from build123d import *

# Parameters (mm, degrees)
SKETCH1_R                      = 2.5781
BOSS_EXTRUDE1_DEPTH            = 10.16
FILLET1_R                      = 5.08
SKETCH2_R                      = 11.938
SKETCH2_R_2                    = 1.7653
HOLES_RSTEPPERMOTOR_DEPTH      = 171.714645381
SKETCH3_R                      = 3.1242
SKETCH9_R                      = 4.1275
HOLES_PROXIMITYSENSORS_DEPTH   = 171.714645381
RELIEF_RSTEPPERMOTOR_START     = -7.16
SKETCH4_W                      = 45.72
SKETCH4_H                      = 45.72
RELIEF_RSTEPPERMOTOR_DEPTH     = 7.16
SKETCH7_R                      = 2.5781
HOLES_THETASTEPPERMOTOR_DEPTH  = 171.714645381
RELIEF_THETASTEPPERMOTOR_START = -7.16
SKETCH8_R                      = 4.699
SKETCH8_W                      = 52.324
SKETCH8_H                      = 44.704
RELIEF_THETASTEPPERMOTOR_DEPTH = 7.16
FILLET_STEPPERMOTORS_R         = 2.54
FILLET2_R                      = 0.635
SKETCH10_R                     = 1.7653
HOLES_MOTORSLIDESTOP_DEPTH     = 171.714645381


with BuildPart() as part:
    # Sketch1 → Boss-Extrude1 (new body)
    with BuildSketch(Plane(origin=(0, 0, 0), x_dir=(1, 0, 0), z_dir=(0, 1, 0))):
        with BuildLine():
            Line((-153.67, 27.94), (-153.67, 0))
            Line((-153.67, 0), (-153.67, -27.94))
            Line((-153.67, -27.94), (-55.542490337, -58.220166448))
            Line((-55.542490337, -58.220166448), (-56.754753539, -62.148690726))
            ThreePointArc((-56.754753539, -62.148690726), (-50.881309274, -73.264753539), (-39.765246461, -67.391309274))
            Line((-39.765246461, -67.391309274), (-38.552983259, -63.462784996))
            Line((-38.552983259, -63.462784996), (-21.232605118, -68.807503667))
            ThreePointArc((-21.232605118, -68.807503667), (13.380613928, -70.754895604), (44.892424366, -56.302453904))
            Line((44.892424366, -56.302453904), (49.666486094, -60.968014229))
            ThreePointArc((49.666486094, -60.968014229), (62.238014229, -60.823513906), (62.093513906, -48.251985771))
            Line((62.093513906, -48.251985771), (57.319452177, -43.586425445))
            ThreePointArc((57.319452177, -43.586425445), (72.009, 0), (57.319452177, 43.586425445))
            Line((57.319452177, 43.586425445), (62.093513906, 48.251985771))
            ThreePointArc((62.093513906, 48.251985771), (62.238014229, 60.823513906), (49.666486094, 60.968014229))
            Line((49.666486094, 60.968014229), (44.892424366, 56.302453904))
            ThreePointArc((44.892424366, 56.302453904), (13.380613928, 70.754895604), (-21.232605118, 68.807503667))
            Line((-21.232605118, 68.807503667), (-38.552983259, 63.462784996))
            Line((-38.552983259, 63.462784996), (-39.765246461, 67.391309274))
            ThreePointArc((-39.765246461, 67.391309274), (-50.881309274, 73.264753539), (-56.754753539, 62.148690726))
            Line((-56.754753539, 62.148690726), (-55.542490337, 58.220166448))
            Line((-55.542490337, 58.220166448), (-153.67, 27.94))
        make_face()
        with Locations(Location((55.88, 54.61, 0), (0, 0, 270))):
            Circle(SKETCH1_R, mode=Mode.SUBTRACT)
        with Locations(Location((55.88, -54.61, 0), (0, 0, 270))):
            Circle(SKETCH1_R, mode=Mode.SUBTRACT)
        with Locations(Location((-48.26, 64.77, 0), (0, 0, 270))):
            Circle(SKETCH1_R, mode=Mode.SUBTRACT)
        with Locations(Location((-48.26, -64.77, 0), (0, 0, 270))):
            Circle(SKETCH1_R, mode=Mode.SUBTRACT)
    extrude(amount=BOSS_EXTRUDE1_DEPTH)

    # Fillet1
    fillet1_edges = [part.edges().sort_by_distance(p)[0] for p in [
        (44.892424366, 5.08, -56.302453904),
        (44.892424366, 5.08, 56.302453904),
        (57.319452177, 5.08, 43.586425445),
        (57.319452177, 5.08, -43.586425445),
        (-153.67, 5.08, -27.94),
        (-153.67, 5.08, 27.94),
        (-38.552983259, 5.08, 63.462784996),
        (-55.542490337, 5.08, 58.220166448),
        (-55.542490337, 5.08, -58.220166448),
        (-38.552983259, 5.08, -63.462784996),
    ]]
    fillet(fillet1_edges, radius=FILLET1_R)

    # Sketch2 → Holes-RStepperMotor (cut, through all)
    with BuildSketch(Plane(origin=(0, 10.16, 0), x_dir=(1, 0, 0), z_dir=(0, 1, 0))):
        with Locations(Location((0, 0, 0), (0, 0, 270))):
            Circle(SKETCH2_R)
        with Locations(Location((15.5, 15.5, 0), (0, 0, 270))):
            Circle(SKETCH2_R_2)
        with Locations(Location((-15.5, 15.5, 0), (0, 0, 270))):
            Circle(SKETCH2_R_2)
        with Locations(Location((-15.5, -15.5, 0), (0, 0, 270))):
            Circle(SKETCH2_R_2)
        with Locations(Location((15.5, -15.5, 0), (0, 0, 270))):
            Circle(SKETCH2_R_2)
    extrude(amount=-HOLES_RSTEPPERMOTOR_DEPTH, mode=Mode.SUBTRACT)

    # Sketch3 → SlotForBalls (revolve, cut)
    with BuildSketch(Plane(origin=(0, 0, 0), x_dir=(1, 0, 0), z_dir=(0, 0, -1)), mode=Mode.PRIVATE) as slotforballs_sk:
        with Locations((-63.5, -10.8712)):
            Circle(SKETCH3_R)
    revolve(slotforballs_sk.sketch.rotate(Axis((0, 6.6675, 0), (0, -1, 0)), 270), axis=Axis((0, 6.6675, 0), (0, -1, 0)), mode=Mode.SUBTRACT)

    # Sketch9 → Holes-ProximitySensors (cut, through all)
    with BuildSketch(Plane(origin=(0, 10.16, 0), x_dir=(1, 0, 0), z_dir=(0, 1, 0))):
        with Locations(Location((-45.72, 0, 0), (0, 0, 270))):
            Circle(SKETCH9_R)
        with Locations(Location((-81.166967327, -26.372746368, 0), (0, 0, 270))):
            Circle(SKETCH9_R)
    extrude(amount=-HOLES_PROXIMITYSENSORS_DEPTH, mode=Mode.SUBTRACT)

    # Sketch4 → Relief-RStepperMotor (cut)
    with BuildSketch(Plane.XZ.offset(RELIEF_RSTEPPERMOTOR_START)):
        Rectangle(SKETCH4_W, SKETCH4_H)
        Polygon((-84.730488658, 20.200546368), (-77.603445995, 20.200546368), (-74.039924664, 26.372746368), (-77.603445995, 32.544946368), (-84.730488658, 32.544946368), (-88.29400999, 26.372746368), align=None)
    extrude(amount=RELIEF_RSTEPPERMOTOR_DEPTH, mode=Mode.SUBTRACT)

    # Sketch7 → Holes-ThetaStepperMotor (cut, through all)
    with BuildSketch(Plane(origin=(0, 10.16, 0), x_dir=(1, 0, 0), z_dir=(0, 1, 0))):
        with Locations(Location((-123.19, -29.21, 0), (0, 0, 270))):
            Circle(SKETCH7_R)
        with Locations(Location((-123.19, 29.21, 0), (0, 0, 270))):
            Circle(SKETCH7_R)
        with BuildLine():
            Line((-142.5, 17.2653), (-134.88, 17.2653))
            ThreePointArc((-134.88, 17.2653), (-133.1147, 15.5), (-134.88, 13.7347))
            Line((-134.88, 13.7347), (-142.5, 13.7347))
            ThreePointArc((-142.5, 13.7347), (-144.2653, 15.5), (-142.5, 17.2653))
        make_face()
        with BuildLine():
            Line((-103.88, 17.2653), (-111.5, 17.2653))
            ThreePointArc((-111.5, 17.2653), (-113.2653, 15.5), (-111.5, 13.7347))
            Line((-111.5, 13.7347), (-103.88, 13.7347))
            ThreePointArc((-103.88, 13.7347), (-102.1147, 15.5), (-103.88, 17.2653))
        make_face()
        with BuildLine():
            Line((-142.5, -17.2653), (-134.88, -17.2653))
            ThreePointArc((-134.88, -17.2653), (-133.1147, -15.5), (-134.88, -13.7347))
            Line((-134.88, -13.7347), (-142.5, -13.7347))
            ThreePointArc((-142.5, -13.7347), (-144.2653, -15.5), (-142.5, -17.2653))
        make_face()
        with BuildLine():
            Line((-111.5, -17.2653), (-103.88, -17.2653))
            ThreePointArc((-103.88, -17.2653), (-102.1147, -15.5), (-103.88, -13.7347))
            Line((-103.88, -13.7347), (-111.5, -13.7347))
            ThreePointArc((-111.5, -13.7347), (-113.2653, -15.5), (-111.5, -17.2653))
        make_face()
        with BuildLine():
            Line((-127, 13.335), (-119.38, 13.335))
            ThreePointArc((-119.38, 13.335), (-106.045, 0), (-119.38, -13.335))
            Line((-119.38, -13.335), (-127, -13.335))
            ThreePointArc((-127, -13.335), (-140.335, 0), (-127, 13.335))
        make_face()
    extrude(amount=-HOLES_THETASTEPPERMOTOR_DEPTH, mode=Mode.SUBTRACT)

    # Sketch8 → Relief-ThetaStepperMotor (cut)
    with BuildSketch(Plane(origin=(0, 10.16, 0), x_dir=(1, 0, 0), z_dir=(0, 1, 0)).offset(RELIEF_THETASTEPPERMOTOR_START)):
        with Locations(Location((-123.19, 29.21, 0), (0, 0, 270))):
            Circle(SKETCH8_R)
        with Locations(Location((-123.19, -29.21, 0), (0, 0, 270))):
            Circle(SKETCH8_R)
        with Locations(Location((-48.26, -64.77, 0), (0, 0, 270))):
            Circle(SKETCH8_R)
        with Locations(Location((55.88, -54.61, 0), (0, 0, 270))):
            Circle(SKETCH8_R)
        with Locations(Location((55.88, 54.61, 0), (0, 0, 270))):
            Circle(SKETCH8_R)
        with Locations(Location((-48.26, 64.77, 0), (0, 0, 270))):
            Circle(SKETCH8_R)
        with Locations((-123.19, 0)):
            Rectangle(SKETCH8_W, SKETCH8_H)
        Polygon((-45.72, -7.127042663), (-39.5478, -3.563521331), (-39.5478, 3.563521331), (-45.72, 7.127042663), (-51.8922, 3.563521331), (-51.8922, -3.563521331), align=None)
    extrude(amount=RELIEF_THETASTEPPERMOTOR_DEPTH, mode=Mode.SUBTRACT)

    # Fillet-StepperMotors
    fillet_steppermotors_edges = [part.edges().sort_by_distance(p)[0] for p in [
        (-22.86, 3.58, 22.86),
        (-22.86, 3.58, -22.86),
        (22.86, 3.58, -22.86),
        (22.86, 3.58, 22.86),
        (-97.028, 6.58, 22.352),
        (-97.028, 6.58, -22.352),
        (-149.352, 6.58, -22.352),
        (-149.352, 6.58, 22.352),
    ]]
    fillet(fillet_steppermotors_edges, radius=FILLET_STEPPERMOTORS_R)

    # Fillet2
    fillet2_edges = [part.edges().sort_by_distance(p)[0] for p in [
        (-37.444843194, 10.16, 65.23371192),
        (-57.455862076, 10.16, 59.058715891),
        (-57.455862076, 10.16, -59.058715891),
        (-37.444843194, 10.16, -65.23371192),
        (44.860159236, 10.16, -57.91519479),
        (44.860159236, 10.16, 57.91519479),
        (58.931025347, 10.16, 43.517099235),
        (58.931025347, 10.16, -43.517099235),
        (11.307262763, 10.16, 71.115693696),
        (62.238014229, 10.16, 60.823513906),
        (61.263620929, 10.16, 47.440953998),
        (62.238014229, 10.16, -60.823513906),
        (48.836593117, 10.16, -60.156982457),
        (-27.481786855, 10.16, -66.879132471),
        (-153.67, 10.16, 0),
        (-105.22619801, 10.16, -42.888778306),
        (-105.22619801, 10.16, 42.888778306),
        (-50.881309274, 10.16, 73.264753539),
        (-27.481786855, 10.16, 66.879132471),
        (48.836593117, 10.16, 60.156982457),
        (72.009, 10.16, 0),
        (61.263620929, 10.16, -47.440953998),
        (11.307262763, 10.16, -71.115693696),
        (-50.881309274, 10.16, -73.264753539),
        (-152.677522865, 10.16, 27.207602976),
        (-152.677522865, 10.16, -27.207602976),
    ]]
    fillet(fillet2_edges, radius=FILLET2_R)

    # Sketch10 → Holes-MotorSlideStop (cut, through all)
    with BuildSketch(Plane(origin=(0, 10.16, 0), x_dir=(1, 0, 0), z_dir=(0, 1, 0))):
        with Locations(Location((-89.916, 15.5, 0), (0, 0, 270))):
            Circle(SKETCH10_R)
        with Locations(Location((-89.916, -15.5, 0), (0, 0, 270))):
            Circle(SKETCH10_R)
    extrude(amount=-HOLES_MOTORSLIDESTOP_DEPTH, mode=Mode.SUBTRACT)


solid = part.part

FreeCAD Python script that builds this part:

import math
import FreeCAD as App
import Part
import Sketcher
Q = App.Units.Quantity


def edges_at(feature, points):
    """Names of the edges that pass closest to the given points."""
    edges = feature.Shape.Edges
    near = lambda p: min(range(len(edges)), key=lambda i: edges[i].distToShape(Part.Vertex(*p))[0])
    return sorted({f"Edge{near(p) + 1}" for p in points})

doc = App.newDocument("Part")
params = doc.addObject("Spreadsheet::Sheet", "Params")
for row, (alias, value) in enumerate([
    ("sketch1_radius", "0.35 in"),
    ("sketch1_diameter", "0.203 in"),
    ("sketch1_height", "2.2 in"),
    ("sketch1_radius2", "2.835 in"),
    ("pad1_length", "0.4 in"),
    ("fillet_radius", "0.2 in"),
    ("sketch2_diameter", "0.94 in"),
    ("sketch2_diameter2", "0.139 in"),
    ("sketch3_diameter", "0.246 in"),
    ("groove_angle", "360 deg"),
    ("sketch4_diameter", "0.325 in"),
    ("sketch5_width", "1.8 in"),
    ("pocket3_length", "7.16 mm"),
    ("sketch6_diameter", "0.203 in"),
    ("sketch6_width", "0.3 in"),
    ("sketch6_radius", "0.525 in"),
    ("sketch7_diameter", "0.37 in"),
    ("sketch7_width", "2.06 in"),
    ("sketch7_height", "1.76 in"),
    ("pocket5_length", "7.16 mm"),
    ("fillet2_radius", "0.1 in"),
    ("fillet3_radius", "0.025 in"),
    ("sketch8_diameter", "0.139 in"),
], start=1):
    params.set(f"A{row}", alias)
    params.set(f"B{row}", "=" + value)
    params.setAlias(f"B{row}", alias)

body = doc.addObject("PartDesign::Body", "Body")

# Sketch on XZ plane
sketch1 = doc.addObject("Sketcher::SketchObject", "Sketch")
body.addObject(sketch1)
sketch1.AttachmentSupport = (doc.XZ_Plane, [""])
sketch1.MapMode = "FlatFace"
sketch1.addGeometry([
    Part.LineSegment(App.Vector(-153.67, -27.94, 0), App.Vector(-153.67, 27.94, 0)),  # 0
    Part.LineSegment(App.Vector(-153.67, 27.94, 0), App.Vector(-55.54249, 58.220166, 0)),  # 1
    Part.LineSegment(App.Vector(-55.54249, 58.220166, 0), App.Vector(-56.754754, 62.148691, 0)),  # 2
    Part.ArcOfCircle(Part.Circle(App.Vector(-48.26, 64.77, 0), App.Vector(0, 0, 1), 8.89), math.radians(17.149169), math.radians(197.149169)),  # 3
    Part.LineSegment(App.Vector(-39.765246, 67.391309, 0), App.Vector(-38.552983, 63.462785, 0)),  # 4
    Part.LineSegment(App.Vector(-38.552983, 63.462785, 0), App.Vector(-21.232605, 68.807504, 0)),  # 5
    Part.ArcOfCircle(Part.Circle(App.Vector(0, 0, 0), App.Vector(0, 0, 1), 72.009), math.radians(51.433103), math.radians(107.149169)),  # 6
    Part.LineSegment(App.Vector(44.892424, 56.302454, 0), App.Vector(49.666486, 60.968014, 0)),  # 7
    Part.ArcOfCircle(Part.Circle(App.Vector(55.88, 54.61, 0), App.Vector(0, 0, 1), 8.89), math.radians(-45.658543), math.radians(134.341457)),  # 8
    Part.LineSegment(App.Vector(62.093514, 48.251986, 0), App.Vector(57.319452, 43.586425, 0)),  # 9
    Part.ArcOfCircle(Part.Circle(App.Vector(0, 0, 0), App.Vector(0, 0, 1), 72.009), math.radians(-37.249811), math.radians(37.249811)),  # 10
    Part.LineSegment(App.Vector(57.319452, -43.586425, 0), App.Vector(62.093514, -48.251986, 0)),  # 11
    Part.ArcOfCircle(Part.Circle(App.Vector(55.88, -54.61, 0), App.Vector(0, 0, 1), 8.89), math.radians(-134.341457), math.radians(45.658543)),  # 12
    Part.LineSegment(App.Vector(49.666486, -60.968014, 0), App.Vector(44.892424, -56.302454, 0)),  # 13
    Part.ArcOfCircle(Part.Circle(App.Vector(0, 0, 0), App.Vector(0, 0, 1), 72.009), math.radians(-107.149169), math.radians(-51.433103)),  # 14
    Part.LineSegment(App.Vector(-21.232605, -68.807504, 0), App.Vector(-38.552983, -63.462785, 0)),  # 15
    Part.LineSegment(App.Vector(-38.552983, -63.462785, 0), App.Vector(-39.765246, -67.391309, 0)),  # 16
    Part.ArcOfCircle(Part.Circle(App.Vector(-48.26, -64.77, 0), App.Vector(0, 0, 1), 8.89), math.radians(162.850831), math.radians(342.850831)),  # 17
    Part.LineSegment(App.Vector(-56.754754, -62.148691, 0), App.Vector(-55.54249, -58.220166, 0)),  # 18
    Part.LineSegment(App.Vector(-55.54249, -58.220166, 0), App.Vector(-153.67, -27.94, 0)),  # 19
    Part.Circle(App.Vector(-48.26, 64.77, 0), App.Vector(0, 0, 1), 2.5781),  # 20
    Part.Circle(App.Vector(55.88, 54.61, 0), App.Vector(0, 0, 1), 2.5781),  # 21
    Part.Circle(App.Vector(-48.26, -64.77, 0), App.Vector(0, 0, 1), 2.5781),  # 22
    Part.Circle(App.Vector(55.88, -54.61, 0), App.Vector(0, 0, 1), 2.5781),  # 23
], False)
sketch1.addConstraint([
    Sketcher.Constraint("Coincident", 0, 2, 1, 1),
    Sketcher.Constraint("Coincident", 1, 2, 2, 1),
    Sketcher.Constraint("Tangent", 2, 2, 3, 2),
    Sketcher.Constraint("Tangent", 3, 1, 4, 1),
    Sketcher.Constraint("Coincident", 4, 2, 5, 1),
    Sketcher.Constraint("Tangent", 5, 2, 6, 2),
    Sketcher.Constraint("Coincident", 6, 1, 7, 1),
    Sketcher.Constraint("Tangent", 7, 2, 8, 2),
    Sketcher.Constraint("Tangent", 8, 1, 9, 1),
    Sketcher.Constraint("Coincident", 9, 2, 10, 2),
    Sketcher.Constraint("Coincident", 10, 1, 11, 1),
    Sketcher.Constraint("Tangent", 11, 2, 12, 2),
    Sketcher.Constraint("Tangent", 12, 1, 13, 1),
    Sketcher.Constraint("Coincident", 13, 2, 14, 2),
    Sketcher.Constraint("Tangent", 14, 1, 15, 1),
    Sketcher.Constraint("Coincident", 15, 2, 16, 1),
    Sketcher.Constraint("Tangent", 16, 2, 17, 2),
    Sketcher.Constraint("Tangent", 17, 1, 18, 1),
    Sketcher.Constraint("Coincident", 18, 2, 19, 1),
    Sketcher.Constraint("Coincident", 19, 2, 0, 1),
    Sketcher.Constraint("Vertical", 0),
    Sketcher.Constraint("Coincident", 6, 3, -1, 1),
    Sketcher.Constraint("Coincident", 10, 3, -1, 1),
    Sketcher.Constraint("Coincident", 14, 3, -1, 1),
    Sketcher.Constraint("Coincident", 20, 3, 3, 3),
    Sketcher.Constraint("Coincident", 21, 3, 8, 3),
    Sketcher.Constraint("Coincident", 22, 3, 17, 3),
    Sketcher.Constraint("Coincident", 23, 3, 12, 3),
    Sketcher.Constraint("Equal", 3, 8),
    Sketcher.Constraint("Equal", 6, 10),
    Sketcher.Constraint("Equal", 8, 12),
    Sketcher.Constraint("Equal", 10, 14),
    Sketcher.Constraint("Equal", 12, 17),
    Sketcher.Constraint("Equal", 20, 21),
    Sketcher.Constraint("Equal", 21, 22),
    Sketcher.Constraint("Equal", 22, 23),
    Sketcher.Constraint("Symmetric", 8, 3, 12, 3, -1),
    Sketcher.Constraint("Symmetric", 3, 3, 17, 3, -1),
    Sketcher.Constraint("Symmetric", 4, 2, 15, 2, -1),
    Sketcher.Constraint("Symmetric", 1, 2, 18, 2, -1),
    Sketcher.Constraint("Perpendicular", 1, 2),
    Sketcher.Constraint("Parallel", 2, 4),
    Sketcher.Constraint("Perpendicular", 4, 5),
    Sketcher.Constraint("Parallel", 7, 9),
    Sketcher.Constraint("Parallel", 11, 13),
    Sketcher.Constraint("Perpendicular", 18, 19),
    Sketcher.Constraint("Vertical", 9, 2, 10, 1),
    Sketcher.Constraint("Equal", 2, 4),
    Sketcher.Constraint("Equal", 7, 9),
    Sketcher.Constraint("Radius", 3, Q("0.35 in")),
    Sketcher.Constraint("Diameter", 20, Q("0.203 in")),
    Sketcher.Constraint("DistanceY", 0, 1, 0, 2, Q("2.2 in")),
    Sketcher.Constraint("Radius", 6, Q("2.835 in")),
    Sketcher.Constraint("DistanceX", 3, 3, -1, 1, Q("1.9 in")),
    Sketcher.Constraint("DistanceX", -1, 1, 8, 3, Q("2.2 in")),
    Sketcher.Constraint("DistanceY", 8, 3, 3, 3, Q("0.4 in")),
    Sketcher.Constraint("DistanceY", 12, 3, 8, 3, Q("4.3 in")),
    Sketcher.Constraint("DistanceX", 0, 2, -1, 1, Q("6.05 in")),
])
sketch1.setExpression("Constraints[49]", "Params.sketch1_radius")
sketch1.setExpression("Constraints[50]", "Params.sketch1_diameter")
sketch1.setExpression("Constraints[51]", "Params.sketch1_height")
sketch1.setExpression("Constraints[52]", "Params.sketch1_radius2")
pad1 = doc.addObject("PartDesign::Pad", "Pad")
body.addObject(pad1)
pad1.Profile = sketch1
pad1.setExpression("Length", "Params.pad1_length")
pad1.Reversed = True
doc.recompute()

fillet = doc.addObject("PartDesign::Fillet", "Fillet")
body.addObject(fillet)
fillet.Base = (pad1, edges_at(pad1, [
    (44.892, 5.08, -56.302),
    (44.892, 5.08, 56.302),
    (57.319, 5.08, 43.586),
    (57.319, 5.08, -43.586),
    (-153.67, 5.08, -27.94),
    (-153.67, 5.08, 27.94),
    (-38.553, 5.08, 63.463),
    (-55.542, 5.08, 58.22),
    (-55.542, 5.08, -58.22),
    (-38.553, 5.08, -63.463),
]))
fillet.setExpression("Radius", "Params.fillet_radius")

# Sketch on XZ plane
sketch2 = doc.addObject("Sketcher::SketchObject", "Sketch001")
body.addObject(sketch2)
sketch2.AttachmentSupport = (doc.XZ_Plane, [""])
sketch2.MapMode = "FlatFace"
sketch2.AttachmentOffset = App.Placement(App.Vector(0, 0, -0.4 * 25.4), App.Rotation())
sketch2.addGeometry([
    Part.Circle(App.Vector(0, 0, 0), App.Vector(0, 0, 1), 11.938),  # 0
    Part.Circle(App.Vector(15.5, -15.5, 0), App.Vector(0, 0, 1), 1.7653),  # 1
    Part.Circle(App.Vector(-15.5, -15.5, 0), App.Vector(0, 0, 1), 1.7653),  # 2
    Part.Circle(App.Vector(-15.5, 15.5, 0), App.Vector(0, 0, 1), 1.7653),  # 3
    Part.Circle(App.Vector(15.5, 15.5, 0), App.Vector(0, 0, 1), 1.7653),  # 4
], False)
sketch2.addConstraint([
    Sketcher.Constraint("Coincident", 0, 3, -1, 1),
    Sketcher.Constraint("Equal", 1, 2),
    Sketcher.Constraint("Equal", 2, 3),
    Sketcher.Constraint("Equal", 3, 4),
    Sketcher.Constraint("Symmetric", 1, 3, 3, 3, -1, 1),
    Sketcher.Constraint("Symmetric", 2, 3, 4, 3, -1, 1),
    Sketcher.Constraint("Symmetric", 1, 3, 2, 3, -2),
    Sketcher.Constraint("Diameter", 0, Q("0.94 in")),
    Sketcher.Constraint("Diameter", 1, Q("0.139 in")),
    Sketcher.Constraint("DistanceX", -1, 1, 1, 3, 15.5),
    Sketcher.Constraint("DistanceY", 1, 3, -1, 1, 15.5),
])
sketch2.setExpression("Constraints[7]", "Params.sketch2_diameter")
sketch2.setExpression("Constraints[8]", "Params.sketch2_diameter2")
pocket1 = doc.addObject("PartDesign::Pocket", "Pocket")
body.addObject(pocket1)
pocket1.Profile = sketch2
pocket1.Type = "ThroughAll"
pocket1.Reversed = True

# Sketch on XY plane
sketch3 = doc.addObject("Sketcher::SketchObject", "Sketch002")
body.addObject(sketch3)
sketch3.AttachmentSupport = (doc.XY_Plane, [""])
sketch3.MapMode = "FlatFace"
sketch3.addGeometry(Part.Circle(App.Vector(-63.5, 10.8712, 0), App.Vector(0, 0, 1), 3.1242), False)
sketch3.addConstraint([
    Sketcher.Constraint("Diameter", 0, Q("0.246 in")),
    Sketcher.Constraint("DistanceX", 0, 3, -1, 1, Q("2.5 in")),
    Sketcher.Constraint("DistanceY", -1, 1, 0, 3, Q("0.428 in")),
])
sketch3.setExpression("Constraints[0]", "Params.sketch3_diameter")
groove = doc.addObject("PartDesign::Groove", "Groove")
body.addObject(groove)
groove.Profile = sketch3
groove.ReferenceAxis = (sketch3, ["V_Axis"])
groove.setExpression("Angle", "Params.groove_angle")

# Sketch on XZ plane
sketch4 = doc.addObject("Sketcher::SketchObject", "Sketch003")
body.addObject(sketch4)
sketch4.AttachmentSupport = (doc.XZ_Plane, [""])
sketch4.MapMode = "FlatFace"
sketch4.AttachmentOffset = App.Placement(App.Vector(0, 0, -0.4 * 25.4), App.Rotation())
sketch4.addGeometry([
    Part.Circle(App.Vector(-45.72, 0, 0), App.Vector(0, 0, 1), 4.1275),
    Part.Circle(App.Vector(-81.166967, 26.372746, 0), App.Vector(0, 0, 1), 4.1275),
], False)
sketch4.addConstraint([
    Sketcher.Constraint("Equal", 0, 1),
    Sketcher.Constraint("PointOnObject", 0, 3, -1),
    Sketcher.Constraint("Diameter", 0, Q("0.325 in")),
    Sketcher.Constraint("DistanceX", 0, 3, -1, 1, Q("1.8 in")),
    Sketcher.Constraint("DistanceX", 1, 3, -1, 1, 81.166967),
    Sketcher.Constraint("DistanceY", -1, 1, 1, 3, 26.372746),
])
sketch4.setExpression("Constraints[2]", "Params.sketch4_diameter")
pocket2 = doc.addObject("PartDesign::Pocket", "Pocket001")
body.addObject(pocket2)
pocket2.Profile = sketch4
pocket2.Type = "ThroughAll"
pocket2.Reversed = True

# Sketch on XZ plane
sketch5 = doc.addObject("Sketcher::SketchObject", "Sketch004")
body.addObject(sketch5)
sketch5.AttachmentSupport = (doc.XZ_Plane, [""])
sketch5.MapMode = "FlatFace"
sketch5.AttachmentOffset = App.Placement(App.Vector(0, 0, -7.16), App.Rotation())
sketch5.addGeometry([
    Part.LineSegment(App.Vector(-22.86, 22.86, 0), App.Vector(-22.86, -22.86, 0)),  # 0
    Part.LineSegment(App.Vector(-22.86, -22.86, 0), App.Vector(22.86, -22.86, 0)),  # 1
    Part.LineSegment(App.Vector(22.86, -22.86, 0), App.Vector(22.86, 22.86, 0)),  # 2
    Part.LineSegment(App.Vector(22.86, 22.86, 0), App.Vector(-22.86, 22.86, 0)),  # 3
    Part.LineSegment(App.Vector(-84.730489, 20.200546, 0), App.Vector(-77.603446, 20.200546, 0)),  # 4
    Part.LineSegment(App.Vector(-77.603446, 20.200546, 0), App.Vector(-74.039925, 26.372746, 0)),  # 5
    Part.LineSegment(App.Vector(-74.039925, 26.372746, 0), App.Vector(-77.603446, 32.544946, 0)),  # 6
    Part.LineSegment(App.Vector(-77.603446, 32.544946, 0), App.Vector(-84.730489, 32.544946, 0)),  # 7
    Part.LineSegment(App.Vector(-84.730489, 32.544946, 0), App.Vector(-88.29401, 26.372746, 0)),  # 8
    Part.LineSegment(App.Vector(-88.29401, 26.372746, 0), App.Vector(-84.730489, 20.200546, 0)),  # 9
], False)
sketch5.addConstraint([
    Sketcher.Constraint("Coincident", 0, 2, 1, 1),
    Sketcher.Constraint("Coincident", 1, 2, 2, 1),
    Sketcher.Constraint("Coincident", 2, 2, 3, 1),
    Sketcher.Constraint("Coincident", 3, 2, 0, 1),
    Sketcher.Constraint("Coincident", 4, 2, 5, 1),
    Sketcher.Constraint("Coincident", 5, 2, 6, 1),
    Sketcher.Constraint("Coincident", 6, 2, 7, 1),
    Sketcher.Constraint("Coincident", 7, 2, 8, 1),
    Sketcher.Constraint("Coincident", 8, 2, 9, 1),
    Sketcher.Constraint("Coincident", 9, 2, 4, 1),
    Sketcher.Constraint("Vertical", 0),
    Sketcher.Constraint("Horizontal", 1),
    Sketcher.Constraint("Vertical", 2),
    Sketcher.Constraint("Horizontal", 3),
    Sketcher.Constraint("Horizontal", 4),
    Sketcher.Constraint("Horizontal", 7),
    Sketcher.Constraint("Symmetric", 0, 2, 2, 2, -1, 1),
    Sketcher.Constraint("Parallel", 5, 8),
    Sketcher.Constraint("Parallel", 6, 9),
    Sketcher.Constraint("Horizontal", 5, 2, 8, 2),
    Sketcher.Constraint("Vertical", 4, 2, 6, 2),
    Sketcher.Constraint("Vertical", 7, 2, 9, 2),
    Sketcher.Constraint("Equal", 3, 0),
    Sketcher.Constraint("DistanceX", 1, 1, 1, 2, Q("1.8 in")),
    Sketcher.Constraint("Angle", 5, Q("60 deg")),
    Sketcher.Constraint("DistanceY", 4, 2, 5, 2, Q("0.243 in")),
    Sketcher.Constraint("DistanceX", 4, 1, 4, 2, 7.127043),
    Sketcher.Constraint("DistanceX", 7, 2, -1, 1, 84.730489),
    Sketcher.Constraint("DistanceY", -1, 1, 4, 2, 20.200546),
])
sketch5.setExpression("Constraints[23]", "Params.sketch5_width")
pocket3 = doc.addObject("PartDesign::Pocket", "Pocket002")
body.addObject(pocket3)
pocket3.Profile = sketch5
pocket3.setExpression("Length", "Params.pocket3_length")
pocket3.Reversed = True

# Sketch on XZ plane
sketch6 = doc.addObject("Sketcher::SketchObject", "Sketch005")
body.addObject(sketch6)
sketch6.AttachmentSupport = (doc.XZ_Plane, [""])
sketch6.MapMode = "FlatFace"
sketch6.AttachmentOffset = App.Placement(App.Vector(0, 0, -0.4 * 25.4), App.Rotation())
sketch6.addGeometry([
    Part.Circle(App.Vector(-123.19, 29.21, 0), App.Vector(0, 0, 1), 2.5781),  # 0
    Part.Circle(App.Vector(-123.19, -29.21, 0), App.Vector(0, 0, 1), 2.5781),  # 1
    Part.LineSegment(App.Vector(-134.88, -17.2653, 0), App.Vector(-142.5, -17.2653, 0)),  # 2
    Part.ArcOfCircle(Part.Circle(App.Vector(-142.5, -15.5, 0), App.Vector(0, 0, 1), 1.7653), math.radians(90), math.radians(270)),  # 3
    Part.LineSegment(App.Vector(-142.5, -13.7347, 0), App.Vector(-134.88, -13.7347, 0)),  # 4
    Part.ArcOfCircle(Part.Circle(App.Vector(-134.88, -15.5, 0), App.Vector(0, 0, 1), 1.7653), math.radians(-90), math.radians(90)),  # 5
    Part.LineSegment(App.Vector(-103.88, -17.2653, 0), App.Vector(-111.5, -17.2653, 0)),  # 6
    Part.ArcOfCircle(Part.Circle(App.Vector(-111.5, -15.5, 0), App.Vector(0, 0, 1), 1.7653), math.radians(90), math.radians(270)),  # 7
    Part.LineSegment(App.Vector(-111.5, -13.7347, 0), App.Vector(-103.88, -13.7347, 0)),  # 8
    Part.ArcOfCircle(Part.Circle(App.Vector(-103.88, -15.5, 0), App.Vector(0, 0, 1), 1.7653), math.radians(-90), math.radians(90)),  # 9
    Part.LineSegment(App.Vector(-142.5, 17.2653, 0), App.Vector(-134.88, 17.2653, 0)),  # 10
    Part.ArcOfCircle(Part.Circle(App.Vector(-134.88, 15.5, 0), App.Vector(0, 0, 1), 1.7653), math.radians(-90), math.radians(90)),  # 11
    Part.LineSegment(App.Vector(-134.88, 13.7347, 0), App.Vector(-142.5, 13.7347, 0)),  # 12
    Part.ArcOfCircle(Part.Circle(App.Vector(-142.5, 15.5, 0), App.Vector(0, 0, 1), 1.7653), math.radians(90), math.radians(270)),  # 13
    Part.LineSegment(App.Vector(-111.5, 17.2653, 0), App.Vector(-103.88, 17.2653, 0)),  # 14
    Part.ArcOfCircle(Part.Circle(App.Vector(-103.88, 15.5, 0), App.Vector(0, 0, 1), 1.7653), math.radians(-90), math.radians(90)),  # 15
    Part.LineSegment(App.Vector(-103.88, 13.7347, 0), App.Vector(-111.5, 13.7347, 0)),  # 16
    Part.ArcOfCircle(Part.Circle(App.Vector(-111.5, 15.5, 0), App.Vector(0, 0, 1), 1.7653), math.radians(90), math.radians(270)),  # 17
    Part.LineSegment(App.Vector(-119.38, -13.335, 0), App.Vector(-127, -13.335, 0)),  # 18
    Part.ArcOfCircle(Part.Circle(App.Vector(-127, 0, 0), App.Vector(0, 0, 1), 13.335), math.radians(90), math.radians(270)),  # 19
    Part.LineSegment(App.Vector(-127, 13.335, 0), App.Vector(-119.38, 13.335, 0)),  # 20
    Part.ArcOfCircle(Part.Circle(App.Vector(-119.38, 0, 0), App.Vector(0, 0, 1), 13.335), math.radians(-90), math.radians(90)),  # 21
], False)
sketch6.addConstraint([
    Sketcher.Constraint("Tangent", 2, 2, 3, 2),
    Sketcher.Constraint("Tangent", 3, 1, 4, 1),
    Sketcher.Constraint("Tangent", 4, 2, 5, 2),
    Sketcher.Constraint("Tangent", 5, 1, 2, 1),
    Sketcher.Constraint("Tangent", 6, 2, 7, 2),
    Sketcher.Constraint("Tangent", 7, 1, 8, 1),
    Sketcher.Constraint("Tangent", 8, 2, 9, 2),
    Sketcher.Constraint("Tangent", 9, 1, 6, 1),
    Sketcher.Constraint("Tangent", 10, 2, 11, 2),
    Sketcher.Constraint("Tangent", 11, 1, 12, 1),
    Sketcher.Constraint("Tangent", 12, 2, 13, 2),
    Sketcher.Constraint("Tangent", 13, 1, 10, 1),
    Sketcher.Constraint("Tangent", 14, 2, 15, 2),
    Sketcher.Constraint("Tangent", 15, 1, 16, 1),
    Sketcher.Constraint("Tangent", 16, 2, 17, 2),
    Sketcher.Constraint("Tangent", 17, 1, 14, 1),
    Sketcher.Constraint("Tangent", 18, 2, 19, 2),
    Sketcher.Constraint("Tangent", 19, 1, 20, 1),
    Sketcher.Constraint("Tangent", 20, 2, 21, 2),
    Sketcher.Constraint("Tangent", 21, 1, 18, 1),
    Sketcher.Constraint("Horizontal", 2),
    Sketcher.Constraint("Horizontal", 4),
    Sketcher.Constraint("Horizontal", 6),
    Sketcher.Constraint("Horizontal", 8),
    Sketcher.Constraint("Horizontal", 10),
    Sketcher.Constraint("Horizontal", 12),
    Sketcher.Constraint("Horizontal", 14),
    Sketcher.Constraint("Horizontal", 16),
    Sketcher.Constraint("Horizontal", 18),
    Sketcher.Constraint("Horizontal", 20),
    Sketcher.Constraint("Equal", 0, 1),
    Sketcher.Constraint("Equal", 5, 7),
    Sketcher.Constraint("Equal", 9, 11),
    Sketcher.Constraint("Equal", 13, 15),
    Sketcher.Constraint("Symmetric", 0, 3, 1, 3, -1),
    Sketcher.Constraint("Symmetric", 5, 3, 11, 3, -1),
    Sketcher.Constraint("Symmetric", 9, 3, 15, 3, -1),
    Sketcher.Constraint("PointOnObject", 19, 3, -1),
    Sketcher.Constraint("Horizontal", 5, 3, 7, 3),
    Sketcher.Constraint("Vertical", 3, 3, 13, 3),
    Sketcher.Constraint("Vertical", 7, 3, 17, 3),
    Sketcher.Constraint("Equal", 4, 6),
    Sketcher.Constraint("Equal", 16, 18),
    Sketcher.Constraint("Diameter", 0, Q("0.203 in")),
    Sketcher.Constraint("DistanceX", 2, 2, 2, 1, Q("0.3 in")),
    Sketcher.Constraint("DistanceX", 19, 3, -1, 1, Q("5 in")),
    Sketcher.Constraint("Radius", 19, Q("0.525 in")),
    Sketcher.Constraint("Radius", 3, Q("0.0695 in")),
    Sketcher.Constraint("DistanceY", 1, 3, 0, 3, Q("2.3 in")),
    Sketcher.Constraint("DistanceX", 0, 3, -1, 1, Q("4.85 in")),
    Sketcher.Constraint("DistanceX", 3, 3, -1, 1, 142.5),
    Sketcher.Constraint("DistanceY", 3, 3, -1, 1, 15.5),
    Sketcher.Constraint("DistanceX", 7, 3, -1, 1, 111.5),
])
sketch6.setExpression("Constraints[43]", "Params.sketch6_diameter")
sketch6.setExpression("Constraints[44]", "Params.sketch6_width")
sketch6.setExpression("Constraints[46]", "Params.sketch6_radius")
pocket4 = doc.addObject("PartDesign::Pocket", "Pocket003")
body.addObject(pocket4)
pocket4.Profile = sketch6
pocket4.Type = "ThroughAll"
pocket4.Reversed = True

# Sketch on XZ plane
sketch7 = doc.addObject("Sketcher::SketchObject", "Sketch006")
body.addObject(sketch7)
sketch7.AttachmentSupport = (doc.XZ_Plane, [""])
sketch7.MapMode = "FlatFace"
sketch7.AttachmentOffset = App.Placement(App.Vector(0, 0, -3), App.Rotation())
sketch7.addGeometry([
    Part.Circle(App.Vector(-123.19, -29.21, 0), App.Vector(0, 0, 1), 4.699),  # 0
    Part.Circle(App.Vector(-123.19, 29.21, 0), App.Vector(0, 0, 1), 4.699),  # 1
    Part.Circle(App.Vector(-48.26, 64.77, 0), App.Vector(0, 0, 1), 4.699),  # 2
    Part.Circle(App.Vector(55.88, 54.61, 0), App.Vector(0, 0, 1), 4.699),  # 3
    Part.Circle(App.Vector(55.88, -54.61, 0), App.Vector(0, 0, 1), 4.699),  # 4
    Part.Circle(App.Vector(-48.26, -64.77, 0), App.Vector(0, 0, 1), 4.699),  # 5
    Part.LineSegment(App.Vector(-149.352, -22.352, 0), App.Vector(-149.352, 22.352, 0)),  # 6
    Part.LineSegment(App.Vector(-149.352, 22.352, 0), App.Vector(-97.028, 22.352, 0)),  # 7
    Part.LineSegment(App.Vector(-97.028, 22.352, 0), App.Vector(-97.028, -22.352, 0)),  # 8
    Part.LineSegment(App.Vector(-97.028, -22.352, 0), App.Vector(-149.352, -22.352, 0)),  # 9
    Part.LineSegment(App.Vector(-45.72, 7.127043, 0), App.Vector(-39.5478, 3.563521, 0)),  # 10
    Part.LineSegment(App.Vector(-39.5478, 3.563521, 0), App.Vector(-39.5478, -3.563521, 0)),  # 11
    Part.LineSegment(App.Vector(-39.5478, -3.563521, 0), App.Vector(-45.72, -7.127043, 0)),  # 12
    Part.LineSegment(App.Vector(-45.72, -7.127043, 0), App.Vector(-51.8922, -3.563521, 0)),  # 13
    Part.LineSegment(App.Vector(-51.8922, -3.563521, 0), App.Vector(-51.8922, 3.563521, 0)),  # 14
    Part.LineSegment(App.Vector(-51.8922, 3.563521, 0), App.Vector(-45.72, 7.127043, 0)),  # 15
], False)
sketch7.addConstraint([
    Sketcher.Constraint("Coincident", 6, 2, 7, 1),
    Sketcher.Constraint("Coincident", 7, 2, 8, 1),
    Sketcher.Constraint("Coincident", 8, 2, 9, 1),
    Sketcher.Constraint("Coincident", 9, 2, 6, 1),
    Sketcher.Constraint("Coincident", 10, 2, 11, 1),
    Sketcher.Constraint("Coincident", 11, 2, 12, 1),
    Sketcher.Constraint("Coincident", 12, 2, 13, 1),
    Sketcher.Constraint("Coincident", 13, 2, 14, 1),
    Sketcher.Constraint("Coincident", 14, 2, 15, 1),
    Sketcher.Constraint("Coincident", 15, 2, 10, 1),
    Sketcher.Constraint("Vertical", 6),
    Sketcher.Constraint("Horizontal", 7),
    Sketcher.Constraint("Vertical", 8),
    Sketcher.Constraint("Horizontal", 9),
    Sketcher.Constraint("Vertical", 11),
    Sketcher.Constraint("Vertical", 14),
    Sketcher.Constraint("Equal", 0, 1),
    Sketcher.Constraint("Equal", 1, 2),
    Sketcher.Constraint("Equal", 2, 3),
    Sketcher.Constraint("Equal", 3, 4),
    Sketcher.Constraint("Equal", 4, 5),
    Sketcher.Constraint("Symmetric", 0, 3, 1, 3, -1),
    Sketcher.Constraint("Symmetric", 3, 3, 4, 3, -1),
    Sketcher.Constraint("Symmetric", 2, 3, 5, 3, -1),
    Sketcher.Constraint("Symmetric", 12, 2, 15, 2, -1),
    Sketcher.Constraint("Parallel", 10, 13),
    Sketcher.Constraint("Parallel", 12, 15),
    Sketcher.Constraint("Horizontal", 11, 2, 13, 2),
    Sketcher.Constraint("Horizontal", 10, 2, 14, 2),
    Sketcher.Constraint("Diameter", 0, Q("0.37 in")),
    Sketcher.Constraint("Angle", 10, Q("-30 deg")),
    Sketcher.Constraint("DistanceY", 1, 3, 3, 3, Q("1 in")),
    Sketcher.Constraint("DistanceX", 7, 1, 7, 2, Q("2.06 in")),
    Sketcher.Constraint("DistanceY", 6, 1, 6, 2, Q("1.76 in")),
    Sketcher.Constraint("DistanceX", 2, 3, -1, 1, Q("1.9 in")),
    Sketcher.Constraint("DistanceX", -1, 1, 3, 3, Q("2.2 in")),
    Sketcher.Constraint("DistanceX", 12, 2, -1, 1, Q("1.8 in")),
    Sketcher.Constraint("DistanceY", 0, 3, 1, 3, Q("2.3 in")),
    Sketcher.Constraint("DistanceY", 1, 3, 2, 3, Q("1.4 in")),
    Sketcher.Constraint("DistanceX", 0, 3, -1, 1, Q("4.85 in")),
    Sketcher.Constraint("DistanceX", 6, 2, -1, 1, Q("5.88 in")),
    Sketcher.Constraint("DistanceY", -1, 1, 6, 2, Q("0.88 in")),
    Sketcher.Constraint("DistanceX", 10, 2, -1, 1, Q("1.557 in")),
    Sketcher.Constraint("DistanceY", 11, 2, 11, 1, 7.127043),
])
sketch7.setExpression("Constraints[29]", "Params.sketch7_diameter")
sketch7.setExpression("Constraints[32]", "Params.sketch7_width")
sketch7.setExpression("Constraints[33]", "Params.sketch7_height")
pocket5 = doc.addObject("PartDesign::Pocket", "Pocket004")
body.addObject(pocket5)
pocket5.Profile = sketch7
pocket5.setExpression("Length", "Params.pocket5_length")
doc.recompute()

fillet2 = doc.addObject("PartDesign::Fillet", "Fillet001")
body.addObject(fillet2)
fillet2.Base = (pocket5, edges_at(pocket5, [
    (-22.86, 3.58, 22.86),
    (-22.86, 3.58, -22.86),
    (22.86, 3.58, -22.86),
    (22.86, 3.58, 22.86),
    (-97.028, 6.58, 22.352),
    (-97.028, 6.58, -22.352),
    (-149.352, 6.58, -22.352),
    (-149.352, 6.58, 22.352),
]))
fillet2.setExpression("Radius", "Params.fillet2_radius")
doc.recompute()

fillet3 = doc.addObject("PartDesign::Fillet", "Fillet002")
body.addObject(fillet3)
fillet3.Base = (fillet2, edges_at(fillet2, [
    (-37.445, 10.16, 65.234),
    (-57.456, 10.16, 59.059),
    (-57.456, 10.16, -59.059),
    (-37.445, 10.16, -65.234),
    (44.86, 10.16, -57.915),
    (44.86, 10.16, 57.915),
    (58.931, 10.16, 43.517),
    (58.931, 10.16, -43.517),
    (11.307, 10.16, 71.116),
    (62.238, 10.16, 60.824),
    (61.264, 10.16, 47.441),
    (62.238, 10.16, -60.824),
    (48.837, 10.16, -60.157),
    (-27.482, 10.16, -66.879),
    (-153.67, 10.16, 0),
    (-105.226, 10.16, -42.889),
    (-105.226, 10.16, 42.889),
    (-50.881, 10.16, 73.265),
    (-27.482, 10.16, 66.879),
    (48.837, 10.16, 60.157),
    (72.009, 10.16, 0),
    (61.264, 10.16, -47.441),
    (11.307, 10.16, -71.116),
    (-50.881, 10.16, -73.265),
    (-152.678, 10.16, 27.208),
    (-152.678, 10.16, -27.208),
]))
fillet3.setExpression("Radius", "Params.fillet3_radius")

# Sketch on XZ plane
sketch8 = doc.addObject("Sketcher::SketchObject", "Sketch007")
body.addObject(sketch8)
sketch8.AttachmentSupport = (doc.XZ_Plane, [""])
sketch8.MapMode = "FlatFace"
sketch8.AttachmentOffset = App.Placement(App.Vector(0, 0, -0.4 * 25.4), App.Rotation())
sketch8.addGeometry([
    Part.Circle(App.Vector(-89.916, -15.5, 0), App.Vector(0, 0, 1), 1.7653),
    Part.Circle(App.Vector(-89.916, 15.5, 0), App.Vector(0, 0, 1), 1.7653),
], False)
sketch8.addConstraint([
    Sketcher.Constraint("Equal", 0, 1),
    Sketcher.Constraint("Symmetric", 0, 3, 1, 3, -1),
    Sketcher.Constraint("Diameter", 0, Q("0.139 in")),
    Sketcher.Constraint("DistanceX", 0, 3, -1, 1, Q("3.54 in")),
    Sketcher.Constraint("DistanceY", 0, 3, -1, 1, 15.5),
])
sketch8.setExpression("Constraints[2]", "Params.sketch8_diameter")
pocket6 = doc.addObject("PartDesign::Pocket", "Pocket005")
body.addObject(pocket6)
pocket6.Profile = sketch8
pocket6.Type = "ThroughAll"
pocket6.Reversed = True

doc.recompute()
